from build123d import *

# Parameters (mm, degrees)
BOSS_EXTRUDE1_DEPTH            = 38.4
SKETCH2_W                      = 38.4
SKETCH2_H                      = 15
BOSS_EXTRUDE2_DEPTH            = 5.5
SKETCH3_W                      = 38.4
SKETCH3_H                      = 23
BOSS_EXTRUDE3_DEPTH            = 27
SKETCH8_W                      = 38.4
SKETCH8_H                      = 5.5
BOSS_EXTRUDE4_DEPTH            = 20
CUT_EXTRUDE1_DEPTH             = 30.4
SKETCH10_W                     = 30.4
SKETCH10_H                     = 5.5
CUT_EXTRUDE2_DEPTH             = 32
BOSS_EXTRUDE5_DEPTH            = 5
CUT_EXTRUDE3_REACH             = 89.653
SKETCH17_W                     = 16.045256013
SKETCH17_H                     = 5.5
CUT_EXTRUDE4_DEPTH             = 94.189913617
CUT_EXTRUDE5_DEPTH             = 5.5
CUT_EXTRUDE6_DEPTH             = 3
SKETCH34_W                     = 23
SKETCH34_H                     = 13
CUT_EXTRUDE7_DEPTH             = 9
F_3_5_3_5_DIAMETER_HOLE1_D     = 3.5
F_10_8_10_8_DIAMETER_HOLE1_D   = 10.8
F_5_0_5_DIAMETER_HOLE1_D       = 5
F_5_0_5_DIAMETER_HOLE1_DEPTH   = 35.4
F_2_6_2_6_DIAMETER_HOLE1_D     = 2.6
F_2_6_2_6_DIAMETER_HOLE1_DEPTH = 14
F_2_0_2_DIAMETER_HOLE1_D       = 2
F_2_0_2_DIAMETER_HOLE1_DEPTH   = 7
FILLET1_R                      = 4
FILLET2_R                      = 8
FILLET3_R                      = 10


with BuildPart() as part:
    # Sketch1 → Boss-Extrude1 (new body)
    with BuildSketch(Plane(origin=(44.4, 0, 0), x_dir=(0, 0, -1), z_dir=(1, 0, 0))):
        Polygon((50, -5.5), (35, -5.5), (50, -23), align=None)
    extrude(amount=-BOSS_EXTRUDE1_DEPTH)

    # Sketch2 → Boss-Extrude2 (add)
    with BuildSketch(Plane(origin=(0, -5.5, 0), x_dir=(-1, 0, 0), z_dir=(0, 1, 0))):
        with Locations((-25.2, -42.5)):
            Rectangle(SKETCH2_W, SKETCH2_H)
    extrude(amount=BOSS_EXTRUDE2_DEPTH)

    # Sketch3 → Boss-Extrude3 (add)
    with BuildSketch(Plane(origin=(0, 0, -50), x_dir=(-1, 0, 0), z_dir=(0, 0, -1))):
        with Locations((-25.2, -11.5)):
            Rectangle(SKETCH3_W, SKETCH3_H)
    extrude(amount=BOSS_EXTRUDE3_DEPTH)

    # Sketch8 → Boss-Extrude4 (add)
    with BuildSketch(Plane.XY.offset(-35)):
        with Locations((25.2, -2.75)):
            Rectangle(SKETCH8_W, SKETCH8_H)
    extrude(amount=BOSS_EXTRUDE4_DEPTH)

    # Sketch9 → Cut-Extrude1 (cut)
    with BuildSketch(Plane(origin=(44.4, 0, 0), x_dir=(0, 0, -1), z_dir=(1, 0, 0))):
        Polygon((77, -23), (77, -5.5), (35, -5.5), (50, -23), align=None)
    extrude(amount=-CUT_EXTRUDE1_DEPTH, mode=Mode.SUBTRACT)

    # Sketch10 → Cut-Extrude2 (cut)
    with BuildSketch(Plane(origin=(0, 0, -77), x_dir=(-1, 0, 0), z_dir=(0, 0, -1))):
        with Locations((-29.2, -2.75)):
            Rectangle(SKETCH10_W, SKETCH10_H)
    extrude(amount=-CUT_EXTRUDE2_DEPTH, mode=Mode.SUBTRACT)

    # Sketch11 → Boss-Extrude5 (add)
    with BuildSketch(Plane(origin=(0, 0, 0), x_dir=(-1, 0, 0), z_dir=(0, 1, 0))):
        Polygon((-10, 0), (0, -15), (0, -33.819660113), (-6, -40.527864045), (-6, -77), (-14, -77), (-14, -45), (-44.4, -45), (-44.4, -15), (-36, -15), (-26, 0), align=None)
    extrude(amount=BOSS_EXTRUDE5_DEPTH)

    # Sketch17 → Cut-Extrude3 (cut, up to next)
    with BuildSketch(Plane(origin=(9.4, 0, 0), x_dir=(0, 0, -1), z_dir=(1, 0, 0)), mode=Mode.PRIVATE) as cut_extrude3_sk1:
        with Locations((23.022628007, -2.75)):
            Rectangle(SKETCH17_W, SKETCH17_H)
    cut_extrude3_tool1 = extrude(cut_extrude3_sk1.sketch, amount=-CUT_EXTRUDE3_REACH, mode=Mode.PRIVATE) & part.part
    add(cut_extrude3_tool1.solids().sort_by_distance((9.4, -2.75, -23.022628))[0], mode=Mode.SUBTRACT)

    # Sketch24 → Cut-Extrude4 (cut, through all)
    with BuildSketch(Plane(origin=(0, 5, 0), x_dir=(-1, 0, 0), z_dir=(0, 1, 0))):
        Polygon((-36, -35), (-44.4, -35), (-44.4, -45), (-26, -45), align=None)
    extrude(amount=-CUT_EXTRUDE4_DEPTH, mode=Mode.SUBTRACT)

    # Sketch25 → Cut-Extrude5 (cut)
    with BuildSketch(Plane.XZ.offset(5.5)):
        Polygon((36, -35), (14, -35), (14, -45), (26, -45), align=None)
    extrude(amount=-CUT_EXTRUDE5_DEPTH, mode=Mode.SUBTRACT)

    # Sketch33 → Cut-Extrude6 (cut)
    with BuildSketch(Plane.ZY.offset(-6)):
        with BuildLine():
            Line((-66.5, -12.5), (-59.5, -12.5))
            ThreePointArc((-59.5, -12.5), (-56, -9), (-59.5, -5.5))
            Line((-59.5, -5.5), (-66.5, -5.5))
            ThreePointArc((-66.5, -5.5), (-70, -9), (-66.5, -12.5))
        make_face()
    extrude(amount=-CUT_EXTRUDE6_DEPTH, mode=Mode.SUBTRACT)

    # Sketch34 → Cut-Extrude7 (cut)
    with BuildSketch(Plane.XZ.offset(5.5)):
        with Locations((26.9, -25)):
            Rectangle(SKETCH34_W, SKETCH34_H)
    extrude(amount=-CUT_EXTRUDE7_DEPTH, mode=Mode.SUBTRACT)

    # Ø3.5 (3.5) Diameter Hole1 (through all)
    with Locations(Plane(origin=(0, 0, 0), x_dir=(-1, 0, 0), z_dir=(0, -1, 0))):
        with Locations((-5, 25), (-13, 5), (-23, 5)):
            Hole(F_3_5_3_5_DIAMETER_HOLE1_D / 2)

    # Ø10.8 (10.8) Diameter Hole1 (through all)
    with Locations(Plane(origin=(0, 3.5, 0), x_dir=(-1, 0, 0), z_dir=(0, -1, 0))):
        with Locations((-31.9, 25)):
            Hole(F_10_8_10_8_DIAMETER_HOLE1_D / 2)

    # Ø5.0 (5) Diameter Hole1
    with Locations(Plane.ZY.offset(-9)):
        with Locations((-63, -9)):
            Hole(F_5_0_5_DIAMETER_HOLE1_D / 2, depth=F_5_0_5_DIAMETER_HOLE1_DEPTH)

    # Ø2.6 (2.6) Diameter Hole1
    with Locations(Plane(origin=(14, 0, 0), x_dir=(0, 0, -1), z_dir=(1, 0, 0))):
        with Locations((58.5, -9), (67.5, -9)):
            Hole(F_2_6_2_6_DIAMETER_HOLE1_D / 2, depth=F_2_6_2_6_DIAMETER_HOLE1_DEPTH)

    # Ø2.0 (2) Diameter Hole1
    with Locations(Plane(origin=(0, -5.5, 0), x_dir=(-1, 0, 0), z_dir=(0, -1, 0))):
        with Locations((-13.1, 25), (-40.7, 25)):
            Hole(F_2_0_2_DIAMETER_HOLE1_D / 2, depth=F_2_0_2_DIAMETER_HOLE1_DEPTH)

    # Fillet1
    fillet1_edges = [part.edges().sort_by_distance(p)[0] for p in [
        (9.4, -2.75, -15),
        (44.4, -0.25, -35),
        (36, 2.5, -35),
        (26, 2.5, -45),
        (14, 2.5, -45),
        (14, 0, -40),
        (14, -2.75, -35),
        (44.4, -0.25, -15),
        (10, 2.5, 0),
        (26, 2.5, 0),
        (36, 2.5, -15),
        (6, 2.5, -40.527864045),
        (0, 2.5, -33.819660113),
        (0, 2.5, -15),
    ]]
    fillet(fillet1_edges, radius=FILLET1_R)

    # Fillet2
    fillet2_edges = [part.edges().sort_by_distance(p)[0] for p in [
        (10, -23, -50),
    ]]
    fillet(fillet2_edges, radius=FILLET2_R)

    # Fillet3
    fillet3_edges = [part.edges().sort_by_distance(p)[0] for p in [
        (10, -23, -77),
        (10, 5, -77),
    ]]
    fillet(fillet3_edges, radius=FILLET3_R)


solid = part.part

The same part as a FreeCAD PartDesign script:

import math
import FreeCAD as App
import Part
import Sketcher

V = App.Vector
Q = App.Units.Quantity


def edges_at(feature, points):
    """Names of the edges that pass closest to the given points."""
    edges = feature.Shape.Edges
    near = lambda p: min(range(len(edges)), key=lambda i: edges[i].distToShape(Part.Vertex(*p))[0])
    return sorted({f"Edge{near(p) + 1}" for p in points})


def add_polygon(sketch, points):
    """Adds a closed chain of lines whose ends are joined by coincident constraints."""
    first, n = sketch.GeometryCount, len(points)
    for a, b in zip(points, points[1:] + points[:1]):
        sketch.addGeometry(Part.LineSegment(App.Vector(*a, 0), App.Vector(*b, 0)), False)
    for i in range(n):
        sketch.addConstraint(Sketcher.Constraint("Coincident", first + i, 2, first + (i + 1) % n, 1))

doc = App.newDocument("Part")
body = doc.addObject("PartDesign::Body", "Body")

sketch1 = doc.addObject("Sketcher::SketchObject", "Sketch")
body.addObject(sketch1)
sketch1.AttachmentSupport = (doc.YZ_Plane, [""])
sketch1.MapMode = "FlatFace"
sketch1.AttachmentOffset = App.Placement(V(0, 0, 44.4), App.Rotation())
add_polygon(sketch1, [(-6, -50), (-6, -35), (-23, -50)])
sketch1.addConstraint([
    Sketcher.Constraint("Vertical", 0),
    Sketcher.Constraint("Horizontal", 2),
    Sketcher.Constraint("DistanceY", 0, 1, 0, 2, 15.0),
    Sketcher.Constraint("DistanceX", 2, 1, 2, 2, 17.5),
    Sketcher.Constraint("DistanceY", 0, 2, -1, 1, 35.0),
    Sketcher.Constraint("DistanceX", 1, 2, -1, 1, 23.0),
])
pad1 = doc.addObject("PartDesign::Pad", "Pad")
body.addObject(pad1)
pad1.Profile = sketch1
pad1.Length = 38.4
pad1.Reversed = True

sketch2 = doc.addObject("Sketcher::SketchObject", "Sketch001")
body.addObject(sketch2)
sketch2.AttachmentSupport = (doc.XZ_Plane, [""])
sketch2.MapMode = "FlatFace"
sketch2.AttachmentOffset = App.Placement(V(0, 0, 5.5), App.Rotation())
add_polygon(sketch2, [(44, -35), (44, -50), (6, -50), (6, -35)])
sketch2.addConstraint([
    Sketcher.Constraint("Vertical", 0),
    Sketcher.Constraint("Horizontal", 1),
    Sketcher.Constraint("Vertical", 2),
    Sketcher.Constraint("Horizontal", 3),
    Sketcher.Constraint("DistanceY", 0, 2, 0, 1, 15.0),
    Sketcher.Constraint("DistanceX", 1, 2, 1, 1, 38.4),
    Sketcher.Constraint("DistanceY", 0, 2, -1, 1, 50.0),
    Sketcher.Constraint("DistanceX", -1, 1, 1, 2, 6.0),
])
pad2 = doc.addObject("PartDesign::Pad", "Pad001")
body.addObject(pad2)
pad2.Profile = sketch2
pad2.Length = 5.5
pad2.Reversed = True

sketch3 = doc.addObject("Sketcher::SketchObject", "Sketch002")
body.addObject(sketch3)
sketch3.AttachmentSupport = (doc.XY_Plane, [""])
sketch3.MapMode = "FlatFace"
sketch3.AttachmentOffset = App.Placement(V(0, 0, -50), App.Rotation())
add_polygon(sketch3, [(44, 0), (44, -23), (6, -23), (6, 0)])
sketch3.addConstraint([
    Sketcher.Constraint("Vertical", 0),
    Sketcher.Constraint("Horizontal", 1),
    Sketcher.Constraint("Vertical", 2),
    Sketcher.Constraint("Horizontal", 3),
    Sketcher.Constraint("PointOnObject", 2, 2, -1),
    Sketcher.Constraint("DistanceY", 0, 2, 0, 1, 23.0),
    Sketcher.Constraint("DistanceX", 1, 2, 1, 1, 38.4),
    Sketcher.Constraint("DistanceX", -1, 1, 1, 2, 6.0),
])
pad3 = doc.addObject("PartDesign::Pad", "Pad002")
body.addObject(pad3)
pad3.Profile = sketch3
pad3.Length = 27
pad3.Reversed = True

sketch4 = doc.addObject("Sketcher::SketchObject", "Sketch003")
body.addObject(sketch4)
sketch4.AttachmentSupport = (doc.XY_Plane, [""])
sketch4.MapMode = "FlatFace"
sketch4.AttachmentOffset = App.Placement(V(0, 0, -35), App.Rotation())
add_polygon(sketch4, [(6, 0), (6, -6), (44, -6), (44, 0)])
sketch4.addConstraint([
    Sketcher.Constraint("Vertical", 0),
    Sketcher.Constraint("Horizontal", 1),
    Sketcher.Constraint("Vertical", 2),
    Sketcher.Constraint("Horizontal", 3),
    Sketcher.Constraint("PointOnObject", 2, 2, -1),
    Sketcher.Constraint("DistanceX", 1, 1, 1, 2, 38.4),
    Sketcher.Constraint("DistanceY", 0, 2, 0, 1, 5.5),
    Sketcher.Constraint("DistanceX", -1, 1, 0, 2, 6.0),
])
pad4 = doc.addObject("PartDesign::Pad", "Pad003")
body.addObject(pad4)
pad4.Profile = sketch4
pad4.Length = 20

sketch5 = doc.addObject("Sketcher::SketchObject", "Sketch004")
body.addObject(sketch5)
sketch5.AttachmentSupport = (doc.YZ_Plane, [""])
sketch5.MapMode = "FlatFace"
sketch5.AttachmentOffset = App.Placement(V(0, 0, 44.4), App.Rotation())
add_polygon(sketch5, [(-23, -77), (-6, -77), (-6, -35), (-23, -50)])
sketch5.addConstraint([
    Sketcher.Constraint("Horizontal", 0),
    Sketcher.Constraint("Vertical", 1),
    Sketcher.Constraint("Vertical", 3),
    Sketcher.Constraint("DistanceY", 1, 1, 1, 2, 42.0),
    Sketcher.Constraint("DistanceY", 3, 2, 3, 1, 27.0),
    Sketcher.Constraint("DistanceX", 0, 1, 0, 2, 17.5),
    Sketcher.Constraint("DistanceY", 0, 2, -1, 1, 77.0),
    Sketcher.Constraint("DistanceX", 2, 2, -1, 1, 23.0),
])
pocket1 = doc.addObject("PartDesign::Pocket", "Pocket")
body.addObject(pocket1)
pocket1.Profile = sketch5
pocket1.Length = 30.4

sketch6 = doc.addObject("Sketcher::SketchObject", "Sketch005")
body.addObject(sketch6)
sketch6.AttachmentSupport = (doc.XY_Plane, [""])
sketch6.MapMode = "FlatFace"
sketch6.AttachmentOffset = App.Placement(V(0, 0, -77), App.Rotation())
add_polygon(sketch6, [(44, 0), (44, -6), (14, -6), (14, 0)])
sketch6.addConstraint([
    Sketcher.Constraint("Vertical", 0),
    Sketcher.Constraint("Horizontal", 1),
    Sketcher.Constraint("Vertical", 2),
    Sketcher.Constraint("Horizontal", 3),
    Sketcher.Constraint("PointOnObject", 2, 2, -1),
    Sketcher.Constraint("DistanceX", 1, 2, 1, 1, 30.4),
    Sketcher.Constraint("DistanceY", 0, 2, 0, 1, 5.5),
    Sketcher.Constraint("DistanceX", -1, 1, 1, 2, 14.0),
])
pocket2 = doc.addObject("PartDesign::Pocket", "Pocket001")
body.addObject(pocket2)
pocket2.Profile = sketch6
pocket2.Length = 32
pocket2.Reversed = True

sketch7 = doc.addObject("Sketcher::SketchObject", "Sketch006")
body.addObject(sketch7)
sketch7.AttachmentSupport = (doc.XZ_Plane, [""])
sketch7.MapMode = "FlatFace"
add_polygon(sketch7, [(0, -15), (10, 0), (26, 0), (36, -15), (44, -15), (44, -45), (14, -45), (14, -77), (6, -77), (6, -41), (0, -34)])
sketch7.addConstraint([
    Sketcher.Constraint("Horizontal", 1),
    Sketcher.Constraint("Horizontal", 3),
    Sketcher.Constraint("Vertical", 4),
    Sketcher.Constraint("Horizontal", 5),
    Sketcher.Constraint("Vertical", 6),
    Sketcher.Constraint("Horizontal", 7),
    Sketcher.Constraint("Vertical", 8),
    Sketcher.Constraint("Vertical", 10),
    Sketcher.Constraint("PointOnObject", 0, 2, -1),
    Sketcher.Constraint("PointOnObject", 9, 2, -2),
    Sketcher.Constraint("Horizontal", 3, 2, 10, 2),
    Sketcher.Constraint("Equal", 0, 2),
    Sketcher.Constraint("DistanceX", 1, 1, 1, 2, 16.0),
    Sketcher.Constraint("DistanceX", 7, 2, 7, 1, 8.0),
    Sketcher.Constraint("DistanceY", 4, 2, 4, 1, 30.0),
    Sketcher.Constraint("DistanceY", 6, 2, 6, 1, 32.0),
    Sketcher.Constraint("Distance", 9, 9.0),
    Sketcher.Constraint("DistanceX", 3, 1, 3, 2, 8.4),
    Sketcher.Constraint("DistanceX", 5, 2, 5, 1, 30.4),
    Sketcher.Constraint("DistanceX", -1, 1, 0, 2, 10.0),
    Sketcher.Constraint("DistanceY", 2, 2, -1, 1, 15.0),
    Sketcher.Constraint("DistanceY", 10, 1, 10, 2, 18.81966),
])
pad5 = doc.addObject("PartDesign::Pad", "Pad004")
body.addObject(pad5)
pad5.Profile = sketch7
pad5.Length = 5
pad5.Reversed = True

sketch8 = doc.addObject("Sketcher::SketchObject", "Sketch007")
body.addObject(sketch8)
sketch8.AttachmentSupport = (doc.YZ_Plane, [""])
sketch8.MapMode = "FlatFace"
sketch8.AttachmentOffset = App.Placement(V(0, 0, 9.4), App.Rotation())
add_polygon(sketch8, [(0, -15), (-6, -15), (-6, -31), (0, -31)])
sketch8.addConstraint([
    Sketcher.Constraint("Horizontal", 0),
    Sketcher.Constraint("Vertical", 1),
    Sketcher.Constraint("Horizontal", 2),
    Sketcher.Constraint("Vertical", 3),
    Sketcher.Constraint("PointOnObject", 2, 2, -2),
    Sketcher.Constraint("DistanceX", 0, 2, 0, 1, 5.5),
    Sketcher.Constraint("DistanceY", 0, 2, -1, 1, 15.0),
    Sketcher.Constraint("DistanceY", 1, 2, 1, 1, 16.045256),
])
pocket3 = doc.addObject("PartDesign::Pocket", "Pocket002")
body.addObject(pocket3)
pocket3.Profile = sketch8
pocket3.Type = "UpToFirst"

sketch9 = doc.addObject("Sketcher::SketchObject", "Sketch008")
body.addObject(sketch9)
sketch9.AttachmentSupport = (doc.XZ_Plane, [""])
sketch9.MapMode = "FlatFace"
sketch9.AttachmentOffset = App.Placement(V(0, 0, -5), App.Rotation())
add_polygon(sketch9, [(36, -35), (44, -35), (44, -45), (26, -45)])
sketch9.addConstraint([
    Sketcher.Constraint("Horizontal", 0),
    Sketcher.Constraint("Vertical", 1),
    Sketcher.Constraint("Horizontal", 2),
    Sketcher.Constraint("DistanceY", 1, 2, 1, 1, 10.0),
    Sketcher.Constraint("Angle", 3, Q("45 deg")),
    Sketcher.Constraint("DistanceX", 0, 1, 0, 2, 8.4),
    Sketcher.Constraint("DistanceY", 0, 2, -1, 1, 35.0),
    Sketcher.Constraint("DistanceX", -1, 1, 2, 2, 26.0),
])
pocket4 = doc.addObject("PartDesign::Pocket", "Pocket003")
body.addObject(pocket4)
pocket4.Profile = sketch9
pocket4.Type = "ThroughAll"
pocket4.Reversed = True

sketch10 = doc.addObject("Sketcher::SketchObject", "Sketch009")
body.addObject(sketch10)
sketch10.AttachmentSupport = (doc.XZ_Plane, [""])
sketch10.MapMode = "FlatFace"
sketch10.AttachmentOffset = App.Placement(V(0, 0, 5.5), App.Rotation())
add_polygon(sketch10, [(36, -35), (14, -35), (14, -45), (26, -45)])
sketch10.addConstraint([
    Sketcher.Constraint("Horizontal", 0),
    Sketcher.Constraint("Vertical", 1),
    Sketcher.Constraint("Horizontal", 2),
    Sketcher.Constraint("DistanceX", 0, 2, 0, 1, 22.0),
    Sketcher.Constraint("DistanceX", 2, 1, 2, 2, 12.0),
    Sketcher.Constraint("DistanceY", 1, 2, 1, 1, 10.0),
    Sketcher.Constraint("DistanceX", -1, 1, 0, 2, 14.0),
    Sketcher.Constraint("DistanceY", 0, 2, -1, 1, 35.0),
])
pocket5 = doc.addObject("PartDesign::Pocket", "Pocket004")
body.addObject(pocket5)
pocket5.Profile = sketch10
pocket5.Length = 5.5

sketch11 = doc.addObject("Sketcher::SketchObject", "Sketch010")
body.addObject(sketch11)
sketch11.AttachmentSupport = (doc.YZ_Plane, [""])
sketch11.MapMode = "FlatFace"
sketch11.AttachmentOffset = App.Placement(V(0, 0, 6), App.Rotation())
sketch11.addGeometry([
    Part.LineSegment(V(-12.5, -66.5, 0), V(-12.5, -59.5, 0)),
    Part.ArcOfCircle(Part.Circle(V(-9, -59.5, 0), V(0, 0, 1), 3.5), math.radians(0), math.radians(180)),
    Part.LineSegment(V(-5.5, -59.5, 0), V(-5.5, -66.5, 0)),
    Part.ArcOfCircle(Part.Circle(V(-9, -66.5, 0), V(0, 0, 1), 3.5), math.radians(180), math.radians(360)),
], False)
sketch11.addConstraint([
    Sketcher.Constraint("Tangent", 0, 2, 1, 2),
    Sketcher.Constraint("Tangent", 1, 1, 2, 1),
    Sketcher.Constraint("Tangent", 2, 2, 3, 2),
    Sketcher.Constraint("Tangent", 3, 1, 0, 1),
    Sketcher.Constraint("Vertical", 0),
    Sketcher.Constraint("Vertical", 2),
    Sketcher.Constraint("Radius", 1, 3.5),
    Sketcher.Constraint("DistanceY", 0, 1, 0, 2, 7.0),
    Sketcher.Constraint("DistanceX", 1, 3, -1, 1, 9.0),
    Sketcher.Constraint("DistanceY", 1, 3, -1, 1, 59.5),
])
pocket6 = doc.addObject("PartDesign::Pocket", "Pocket005")
body.addObject(pocket6)
pocket6.Profile = sketch11
pocket6.Length = 3
pocket6.Reversed = True

sketch12 = doc.addObject("Sketcher::SketchObject", "Sketch011")
body.addObject(sketch12)
sketch12.AttachmentSupport = (doc.XZ_Plane, [""])
sketch12.MapMode = "FlatFace"
sketch12.AttachmentOffset = App.Placement(V(0, 0, 5.5), App.Rotation())
add_polygon(sketch12, [(15, -18), (15, -32), (38, -32), (38, -18)])
sketch12.addConstraint([
    Sketcher.Constraint("Vertical", 0),
    Sketcher.Constraint("Horizontal", 1),
    Sketcher.Constraint("Vertical", 2),
    Sketcher.Constraint("Horizontal", 3),
    Sketcher.Constraint("DistanceX", 1, 1, 1, 2, 23.0),
    Sketcher.Constraint("DistanceY", 0, 2, 0, 1, 13.0),
    Sketcher.Constraint("DistanceX", -1, 1, 0, 2, 15.4),
    Sketcher.Constraint("DistanceY", 0, 2, -1, 1, 31.5),
])
pocket7 = doc.addObject("PartDesign::Pocket", "Pocket006")
body.addObject(pocket7)
pocket7.Profile = sketch12
pocket7.Length = 9

sketch13 = doc.addObject("Sketcher::SketchObject", "Sketch012")
body.addObject(sketch13)
sketch13.AttachmentSupport = (doc.XZ_Plane, [""])
sketch13.MapMode = "FlatFace"
sketch13.addGeometry([
    Part.Circle(V(5, -25, 0), V(0, 0, 1), 1.8),
    Part.Circle(V(13, -5, 0), V(0, 0, 1), 1.8),
    Part.Circle(V(23, -5, 0), V(0, 0, 1), 1.8),
], False)
sketch13.addConstraint([
    Sketcher.Constraint("Equal", 0, 1),
    Sketcher.Constraint("Equal", 1, 2),
    Sketcher.Constraint("Horizontal", 1, 3, 2, 3),
    Sketcher.Constraint("Diameter", 0, 3.5),
    Sketcher.Constraint("DistanceX", -1, 1, 0, 3, 5.0),
    Sketcher.Constraint("DistanceY", 0, 3, -1, 1, 25.0),
    Sketcher.Constraint("DistanceX", -1, 1, 1, 3, 13.0),
    Sketcher.Constraint("DistanceY", 1, 3, -1, 1, 5.0),
    Sketcher.Constraint("DistanceX", -1, 1, 2, 3, 23.0),
])
doc.recompute()
hole = doc.addObject("PartDesign::Hole", "Hole")
body.addObject(hole)
hole.Profile = sketch13
hole.ThreadType = "None"
hole.Diameter = 3.5
hole.DepthType = "ThroughAll"

sketch14 = doc.addObject("Sketcher::SketchObject", "Sketch013")
body.addObject(sketch14)
sketch14.AttachmentSupport = (doc.XZ_Plane, [""])
sketch14.MapMode = "FlatFace"
sketch14.AttachmentOffset = App.Placement(V(0, 0, -3.5), App.Rotation())
sketch14.addGeometry(Part.Circle(V(32, -25, 0), V(0, 0, 1), 5), False)
sketch14.addConstraint([
    Sketcher.Constraint("Diameter", 0, 10.8),
    Sketcher.Constraint("DistanceY", 0, 3, -1, 1, 25.0),
    Sketcher.Constraint("DistanceX", -1, 1, 0, 3, 31.9),
])
doc.recompute()
hole2 = doc.addObject("PartDesign::Hole", "Hole001")
body.addObject(hole2)
hole2.Profile = sketch14
hole2.ThreadType = "None"
hole2.Diameter = 10.8
hole2.DepthType = "ThroughAll"

sketch15 = doc.addObject("Sketcher::SketchObject", "Sketch014")
body.addObject(sketch15)
sketch15.AttachmentSupport = (doc.YZ_Plane, [""])
sketch15.MapMode = "FlatFace"
sketch15.AttachmentOffset = App.Placement(V(0, 0, 9), App.Rotation())
sketch15.addGeometry(Part.Circle(V(-9, -63, 0), V(0, 0, 1), 2.5), False)
sketch15.addConstraint([
    Sketcher.Constraint("Diameter", 0, 5.0),
    Sketcher.Constraint("DistanceX", 0, 3, -1, 1, 9.0),
    Sketcher.Constraint("DistanceY", 0, 3, -1, 1, 63.0),
])
doc.recompute()
hole3 = doc.addObject("PartDesign::Hole", "Hole002")
body.addObject(hole3)
hole3.Profile = sketch15
hole3.ThreadType = "None"
hole3.Diameter = 5
hole3.DepthType = "Dimension"
hole3.Depth = 35.4
hole3.DrillPoint = "Flat"
hole3.Reversed = True

sketch16 = doc.addObject("Sketcher::SketchObject", "Sketch015")
body.addObject(sketch16)
sketch16.AttachmentSupport = (doc.YZ_Plane, [""])
sketch16.MapMode = "FlatFace"
sketch16.AttachmentOffset = App.Placement(V(0, 0, 14), App.Rotation())
sketch16.addGeometry([
    Part.Circle(V(-9, -58.5, 0), V(0, 0, 1), 1.3),
    Part.Circle(V(-9, -67.5, 0), V(0, 0, 1), 1.3),
], False)
sketch16.addConstraint([
    Sketcher.Constraint("Equal", 0, 1),
    Sketcher.Constraint("Vertical", 0, 3, 1, 3),
    Sketcher.Constraint("Diameter", 0, 2.6),
    Sketcher.Constraint("DistanceX", 0, 3, -1, 1, 9.0),
    Sketcher.Constraint("DistanceY", 1, 3, 0, 3, 9.0),
    Sketcher.Constraint("DistanceY", 0, 3, -1, 1, 58.5),
])
doc.recompute()
hole4 = doc.addObject("PartDesign::Hole", "Hole003")
body.addObject(hole4)
hole4.Profile = sketch16
hole4.ThreadType = "None"
hole4.Diameter = 2.6
hole4.DepthType = "Dimension"
hole4.Depth = 14
hole4.DrillPoint = "Flat"

sketch17 = doc.addObject("Sketcher::SketchObject", "Sketch016")
body.addObject(sketch17)
sketch17.AttachmentSupport = (doc.XZ_Plane, [""])
sketch17.MapMode = "FlatFace"
sketch17.AttachmentOffset = App.Placement(V(0, 0, 5.5), App.Rotation())
sketch17.addGeometry([
    Part.Circle(V(13.1, -25, 0), V(0, 0, 1), 1),
    Part.Circle(V(40.7, -25, 0), V(0, 0, 1), 1),
], False)
sketch17.addConstraint([
    Sketcher.Constraint("Equal", 0, 1),
    Sketcher.Constraint("Horizontal", 0, 3, 1, 3),
    Sketcher.Constraint("Diameter", 0, 2.0),
    Sketcher.Constraint("DistanceY", 0, 3, -1, 1, 25.0),
    Sketcher.Constraint("DistanceX", -1, 1, 0, 3, 13.1),
    Sketcher.Constraint("DistanceX", -1, 1, 1, 3, 40.7),
])
doc.recompute()
hole5 = doc.addObject("PartDesign::Hole", "Hole004")
body.addObject(hole5)
hole5.Profile = sketch17
hole5.ThreadType = "None"
hole5.Diameter = 2
hole5.DepthType = "Dimension"
hole5.Depth = 7
hole5.DrillPoint = "Flat"
doc.recompute()

fillet = doc.addObject("PartDesign::Fillet", "Fillet")
body.addObject(fillet)
fillet.Base = (hole5, edges_at(hole5, [
    (9.4, -2.75, -15),
    (44.4, -0.25, -35),
    (36, 2.5, -35),
    (26, 2.5, -45),
    (14, 2.5, -45),
    (14, 0, -40),
    (14, -2.75, -35),
    (44.4, -0.25, -15),
    (10, 2.5, 0),
    (26, 2.5, 0),
    (36, 2.5, -15),
    (6, 2.5, -40.528),
    (0, 2.5, -33.82),
    (0, 2.5, -15),
]))
fillet.Radius = 4
doc.recompute()

fillet2 = doc.addObject("PartDesign::Fillet", "Fillet001")
body.addObject(fillet2)
fillet2.Base = (fillet, edges_at(fillet, [(10, -23, -50)]))
fillet2.Radius = 8
doc.recompute()

fillet3 = doc.addObject("PartDesign::Fillet", "Fillet002")
body.addObject(fillet3)
fillet3.Base = (fillet2, edges_at(fillet2, [(10, -23, -77), (10, 5, -77)]))
fillet3.Radius = 10

doc.recompute()
